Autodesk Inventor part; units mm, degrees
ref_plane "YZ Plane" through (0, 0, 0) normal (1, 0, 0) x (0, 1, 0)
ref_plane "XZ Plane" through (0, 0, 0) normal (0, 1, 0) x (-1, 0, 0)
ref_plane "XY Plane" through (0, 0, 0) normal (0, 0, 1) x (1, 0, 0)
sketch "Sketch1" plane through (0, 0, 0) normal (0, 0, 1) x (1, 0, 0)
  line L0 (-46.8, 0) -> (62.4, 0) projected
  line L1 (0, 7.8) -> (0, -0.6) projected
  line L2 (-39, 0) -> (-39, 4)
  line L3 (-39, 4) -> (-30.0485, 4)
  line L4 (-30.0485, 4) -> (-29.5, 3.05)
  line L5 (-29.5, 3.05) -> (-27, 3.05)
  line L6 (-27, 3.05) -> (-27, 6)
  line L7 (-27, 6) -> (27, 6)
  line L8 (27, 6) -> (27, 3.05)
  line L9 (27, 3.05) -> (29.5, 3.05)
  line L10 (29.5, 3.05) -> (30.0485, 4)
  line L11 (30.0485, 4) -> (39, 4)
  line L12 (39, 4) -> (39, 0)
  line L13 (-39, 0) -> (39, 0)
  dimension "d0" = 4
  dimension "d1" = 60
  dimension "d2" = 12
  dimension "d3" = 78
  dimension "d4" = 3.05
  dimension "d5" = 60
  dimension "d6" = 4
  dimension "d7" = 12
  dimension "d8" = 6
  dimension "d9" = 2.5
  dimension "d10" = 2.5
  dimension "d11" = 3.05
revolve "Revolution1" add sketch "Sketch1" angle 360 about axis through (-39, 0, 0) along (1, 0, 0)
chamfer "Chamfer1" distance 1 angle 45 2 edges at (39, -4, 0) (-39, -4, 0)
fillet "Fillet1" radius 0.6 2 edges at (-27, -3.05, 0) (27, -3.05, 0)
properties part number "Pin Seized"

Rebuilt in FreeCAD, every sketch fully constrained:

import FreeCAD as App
import Part
import Sketcher

V = App.Vector
Q = App.Units.Quantity


def edges_at(feature, points):
    """Names of the edges that pass closest to the given points."""
    edges = feature.Shape.Edges
    near = lambda p: min(range(len(edges)), key=lambda i: edges[i].distToShape(Part.Vertex(*p))[0])
    return sorted({f"Edge{near(p) + 1}" for p in points})


def add_polygon(sketch, points):
    """Adds a closed chain of lines whose ends are joined by coincident constraints."""
    first, n = sketch.GeometryCount, len(points)
    for a, b in zip(points, points[1:] + points[:1]):
        sketch.addGeometry(Part.LineSegment(App.Vector(*a, 0), App.Vector(*b, 0)), False)
    for i in range(n):
        sketch.addConstraint(Sketcher.Constraint("Coincident", first + i, 2, first + (i + 1) % n, 1))

doc = App.newDocument("Part")
params = doc.addObject("Spreadsheet::Sheet", "Params")
for row, (alias, value) in enumerate([
    ("sketch1_width", "78 mm"),
    ("sketch1_height", "4 mm"),
    ("sketch1_width2", "2.5 mm"),
    ("revolution_angle", "360 deg"),
    ("chamfer_size", "1 mm"),
    ("fillet_radius", "0.6 mm"),
], start=1):
    params.set(f"A{row}", alias)
    params.set(f"B{row}", "=" + value)
    params.setAlias(f"B{row}", alias)

body = doc.addObject("PartDesign::Body", "Body")

# Sketch on XY plane
sketch1 = body.newObject("Sketcher::SketchObject", "Sketch")
sketch1.AttachmentSupport = (doc.getObject("XY_Plane"), [""])
sketch1.MapMode = "FlatFace"
add_polygon(sketch1, [(-39, 4), (-39, 0), (39, 0), (39, 4), (30, 4), (29.5, 3), (27, 3), (27, 6), (-27, 6), (-27, 3), (-29.5, 3), (-30, 4)])  # lines 0-11
sketch1.addConstraint([
    Sketcher.Constraint("Vertical", 0),
    Sketcher.Constraint("Horizontal", 1),
    Sketcher.Constraint("Vertical", 2),
    Sketcher.Constraint("Horizontal", 3),
    Sketcher.Constraint("Horizontal", 5),
    Sketcher.Constraint("Vertical", 6),
    Sketcher.Constraint("Horizontal", 7),
    Sketcher.Constraint("Vertical", 8),
    Sketcher.Constraint("Horizontal", 9),
    Sketcher.Constraint("Horizontal", 11),
    Sketcher.Constraint("Symmetric", 0, 2, 1, 2, -1, 1),
    Sketcher.Constraint("Symmetric", 5, 2, 8, 2, -2),
    Sketcher.Constraint("Symmetric", 3, 2, 10, 2, -2),
    Sketcher.Constraint("Equal", 5, 9),
    Sketcher.Constraint("DistanceX", 1, 1, 1, 2, 78.0),
    Sketcher.Constraint("DistanceY", 0, 2, 0, 1, 4.0),
    Sketcher.Constraint("DistanceX", 5, 2, 5, 1, 2.5),
    Sketcher.Constraint("DistanceY", -1, 1, 6, 2, 6.0),
    Sketcher.Constraint("DistanceX", 5, 2, 2, 2, 12.0),
    Sketcher.Constraint("DistanceY", -1, 1, 4, 2, 3.05),
    Sketcher.Constraint("Angle", 4, Q("-120.0008 deg")),
])
sketch1.setExpression("Constraints[26]", "Params.sketch1_width")
sketch1.setExpression("Constraints[27]", "Params.sketch1_height")
sketch1.setExpression("Constraints[28]", "Params.sketch1_width2")
revolution = body.newObject("PartDesign::Revolution", "Revolution")
revolution.Profile = sketch1
revolution.ReferenceAxis = (sketch1, ["H_Axis"])
revolution.setExpression("Angle", "Params.revolution_angle")
doc.recompute()

chamfer = body.newObject("PartDesign::Chamfer", "Chamfer")
chamfer.Base = (revolution, edges_at(revolution, [(39, -4, 0), (-39, -4, 0)]))
chamfer.setExpression("Size", "Params.chamfer_size")
doc.recompute()

fillet = body.newObject("PartDesign::Fillet", "Fillet")
fillet.Base = (chamfer, edges_at(chamfer, [(-27, -3.05, 0), (27, -3.05, 0)]))
fillet.setExpression("Radius", "Params.fillet_radius")

doc.recompute()
